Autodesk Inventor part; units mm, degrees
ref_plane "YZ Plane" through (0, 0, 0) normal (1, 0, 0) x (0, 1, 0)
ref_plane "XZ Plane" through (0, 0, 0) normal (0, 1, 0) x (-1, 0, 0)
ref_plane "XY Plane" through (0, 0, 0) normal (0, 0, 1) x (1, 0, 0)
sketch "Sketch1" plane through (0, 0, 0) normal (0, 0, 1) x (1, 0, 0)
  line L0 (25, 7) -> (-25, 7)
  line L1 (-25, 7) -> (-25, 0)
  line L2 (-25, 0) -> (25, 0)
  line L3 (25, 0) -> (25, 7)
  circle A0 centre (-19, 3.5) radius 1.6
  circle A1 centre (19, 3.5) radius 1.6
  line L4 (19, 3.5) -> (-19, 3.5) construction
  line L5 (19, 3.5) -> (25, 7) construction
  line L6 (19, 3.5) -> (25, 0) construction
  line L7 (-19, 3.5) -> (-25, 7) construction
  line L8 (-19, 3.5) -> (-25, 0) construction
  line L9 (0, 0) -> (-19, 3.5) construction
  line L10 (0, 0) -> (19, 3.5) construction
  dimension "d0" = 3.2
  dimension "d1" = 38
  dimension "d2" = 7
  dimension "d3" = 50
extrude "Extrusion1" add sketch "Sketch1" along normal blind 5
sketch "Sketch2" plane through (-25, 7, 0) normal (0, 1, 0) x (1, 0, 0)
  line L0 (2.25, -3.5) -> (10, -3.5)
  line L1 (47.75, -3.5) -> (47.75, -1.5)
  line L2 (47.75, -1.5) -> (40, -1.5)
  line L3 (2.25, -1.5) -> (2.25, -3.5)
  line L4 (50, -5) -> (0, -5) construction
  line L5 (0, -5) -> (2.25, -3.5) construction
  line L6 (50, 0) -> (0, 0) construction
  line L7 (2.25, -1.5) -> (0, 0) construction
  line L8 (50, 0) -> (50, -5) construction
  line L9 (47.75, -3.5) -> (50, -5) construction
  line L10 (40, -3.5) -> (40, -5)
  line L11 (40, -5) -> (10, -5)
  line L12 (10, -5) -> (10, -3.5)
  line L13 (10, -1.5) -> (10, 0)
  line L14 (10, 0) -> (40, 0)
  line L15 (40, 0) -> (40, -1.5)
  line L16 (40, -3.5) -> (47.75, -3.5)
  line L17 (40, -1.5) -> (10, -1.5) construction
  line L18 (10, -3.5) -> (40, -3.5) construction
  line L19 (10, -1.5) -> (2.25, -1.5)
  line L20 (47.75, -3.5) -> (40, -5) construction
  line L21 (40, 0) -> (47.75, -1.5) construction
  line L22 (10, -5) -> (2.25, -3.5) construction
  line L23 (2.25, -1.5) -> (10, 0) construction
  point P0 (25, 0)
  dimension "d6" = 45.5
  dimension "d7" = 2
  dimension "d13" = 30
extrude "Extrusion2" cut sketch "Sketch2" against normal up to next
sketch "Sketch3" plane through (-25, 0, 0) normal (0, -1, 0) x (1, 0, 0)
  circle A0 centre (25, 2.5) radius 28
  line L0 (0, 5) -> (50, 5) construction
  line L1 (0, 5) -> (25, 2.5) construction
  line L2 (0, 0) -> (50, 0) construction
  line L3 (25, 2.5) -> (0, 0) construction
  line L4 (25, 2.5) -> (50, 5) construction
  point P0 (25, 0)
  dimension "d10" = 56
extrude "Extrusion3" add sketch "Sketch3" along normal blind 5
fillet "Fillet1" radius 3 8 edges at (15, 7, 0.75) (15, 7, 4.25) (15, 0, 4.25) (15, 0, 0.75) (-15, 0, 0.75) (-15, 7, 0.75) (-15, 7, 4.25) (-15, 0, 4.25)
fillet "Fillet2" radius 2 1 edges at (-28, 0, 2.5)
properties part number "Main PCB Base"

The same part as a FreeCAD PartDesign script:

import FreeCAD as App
import Part
import Sketcher
from FreeCAD import Vector


def edges_at(feature, points):
    """Names of the edges that pass closest to the given points."""
    edges = feature.Shape.Edges
    near = lambda p: min(range(len(edges)), key=lambda i: edges[i].distToShape(Part.Vertex(*p))[0])
    return sorted({f"Edge{near(p) + 1}" for p in points})


def add_polygon(sketch, points):
    """Adds a closed chain of lines whose ends are joined by coincident constraints."""
    first, n = sketch.GeometryCount, len(points)
    for a, b in zip(points, points[1:] + points[:1]):
        sketch.addGeometry(Part.LineSegment(App.Vector(*a, 0), App.Vector(*b, 0)), False)
    for i in range(n):
        sketch.addConstraint(Sketcher.Constraint("Coincident", first + i, 2, first + (i + 1) % n, 1))

doc = App.newDocument("Part")
body = doc.addObject("PartDesign::Body", "Body")
body.AllowCompound = True

sketch1 = body.newObject("Sketcher::SketchObject", "Sketch")
sketch1.AttachmentSupport = (doc.getObject("XY_Plane"), [""])
sketch1.MapMode = "FlatFace"
add_polygon(sketch1, [(25, 0), (25, 7), (-25, 7), (-25, 0)])
sketch1.addGeometry(Part.Circle(Vector(-19, 3.5, 0), Vector(0, 0, 1), 1.6), False)
sketch1.addGeometry(Part.Circle(Vector(19, 3.5, 0), Vector(0, 0, 1), 1.6), False)
sketch1.addConstraint([
    Sketcher.Constraint("Vertical", 0),
    Sketcher.Constraint("Horizontal", 1),
    Sketcher.Constraint("Vertical", 2),
    Sketcher.Constraint("Horizontal", 3),
    Sketcher.Constraint("Equal", 4, 5),
    Sketcher.Constraint("Symmetric", 2, 2, 3, 2, -1, 1),
    Sketcher.Constraint("Symmetric", 4, 3, 5, 3, -2),
    Sketcher.Constraint("Diameter", 4, 3.2),
    Sketcher.Constraint("DistanceX", 1, 2, 1, 1, 50.0),
    Sketcher.Constraint("DistanceY", 0, 1, 0, 2, 7.0),
    Sketcher.Constraint("DistanceX", 4, 3, 5, 3, 38.0),
    Sketcher.Constraint("DistanceY", -1, 1, 4, 3, 3.5),
])
pad1 = body.newObject("PartDesign::Pad", "Pad")
pad1.Profile = sketch1
pad1.Length = 5

sketch2 = body.newObject("Sketcher::SketchObject", "Sketch001")
sketch2.AttachmentSupport = (doc.getObject("XZ_Plane"), [""])
sketch2.MapMode = "FlatFace"
sketch2.AttachmentOffset = App.Placement(Vector(0, 0, -7), App.Rotation())
add_polygon(sketch2, [(-22.8, 1.5), (-22.8, 3.5), (-15, 3.5), (-15, 5), (15, 5), (15, 3.5), (22.8, 3.5), (22.8, 1.5), (15, 1.5), (15, 0), (-15, 0), (-15, 1.5)])
sketch2.addConstraint([
    Sketcher.Constraint("Vertical", 0),
    Sketcher.Constraint("Horizontal", 1),
    Sketcher.Constraint("Vertical", 2),
    Sketcher.Constraint("Horizontal", 3),
    Sketcher.Constraint("Vertical", 4),
    Sketcher.Constraint("Horizontal", 5),
    Sketcher.Constraint("Vertical", 6),
    Sketcher.Constraint("Horizontal", 7),
    Sketcher.Constraint("Vertical", 8),
    Sketcher.Constraint("Horizontal", 9),
    Sketcher.Constraint("Vertical", 10),
    Sketcher.Constraint("Horizontal", 11),
    Sketcher.Constraint("Symmetric", 8, 2, 9, 2, -1, 1),
    Sketcher.Constraint("Symmetric", 1, 2, 4, 2, -2),
    Sketcher.Constraint("Symmetric", 6, 2, 11, 2, -2),
    Sketcher.Constraint("Vertical", 4, 2, 7, 2),
    Sketcher.Constraint("Equal", 4, 8),
    Sketcher.Constraint("DistanceX", 3, 1, 3, 2, 30.0),
    Sketcher.Constraint("DistanceY", 0, 1, 0, 2, 2.0),
    Sketcher.Constraint("DistanceX", 0, 2, 5, 2, 45.5),
    Sketcher.Constraint("DistanceY", 2, 1, 2, 2, 1.5),
])
pocket1 = body.newObject("PartDesign::Pocket", "Pocket")
pocket1.Profile = sketch2
pocket1.Type = "UpToFirst"
pocket1.Reversed = True

sketch3 = body.newObject("Sketcher::SketchObject", "Sketch002")
sketch3.AttachmentSupport = (doc.getObject("XZ_Plane"), [""])
sketch3.MapMode = "FlatFace"
sketch3.addGeometry(Part.Circle(Vector(0, 2, 0), Vector(0, 0, 1), 28), False)
sketch3.addConstraint([
    Sketcher.Constraint("PointOnObject", 0, 3, -2),
    Sketcher.Constraint("Diameter", 0, 56.0),
    Sketcher.Constraint("DistanceY", -1, 1, 0, 3, 2.5),
])
pad2 = body.newObject("PartDesign::Pad", "Pad001")
pad2.Profile = sketch3
pad2.Length = 5
doc.recompute()

fillet = body.newObject("PartDesign::Fillet", "Fillet")
fillet.Base = (pad2, edges_at(pad2, [
    (15, 7, 0.75),
    (15, 7, 4.25),
    (15, 0, 4.25),
    (15, 0, 0.75),
    (-15, 0, 0.75),
    (-15, 7, 0.75),
    (-15, 7, 4.25),
    (-15, 0, 4.25),
]))
fillet.Radius = 3
doc.recompute()

fillet2 = body.newObject("PartDesign::Fillet", "Fillet001")
fillet2.Base = (fillet, edges_at(fillet, [(-28, 0, 2.5)]))
fillet2.Radius = 2

doc.recompute()
